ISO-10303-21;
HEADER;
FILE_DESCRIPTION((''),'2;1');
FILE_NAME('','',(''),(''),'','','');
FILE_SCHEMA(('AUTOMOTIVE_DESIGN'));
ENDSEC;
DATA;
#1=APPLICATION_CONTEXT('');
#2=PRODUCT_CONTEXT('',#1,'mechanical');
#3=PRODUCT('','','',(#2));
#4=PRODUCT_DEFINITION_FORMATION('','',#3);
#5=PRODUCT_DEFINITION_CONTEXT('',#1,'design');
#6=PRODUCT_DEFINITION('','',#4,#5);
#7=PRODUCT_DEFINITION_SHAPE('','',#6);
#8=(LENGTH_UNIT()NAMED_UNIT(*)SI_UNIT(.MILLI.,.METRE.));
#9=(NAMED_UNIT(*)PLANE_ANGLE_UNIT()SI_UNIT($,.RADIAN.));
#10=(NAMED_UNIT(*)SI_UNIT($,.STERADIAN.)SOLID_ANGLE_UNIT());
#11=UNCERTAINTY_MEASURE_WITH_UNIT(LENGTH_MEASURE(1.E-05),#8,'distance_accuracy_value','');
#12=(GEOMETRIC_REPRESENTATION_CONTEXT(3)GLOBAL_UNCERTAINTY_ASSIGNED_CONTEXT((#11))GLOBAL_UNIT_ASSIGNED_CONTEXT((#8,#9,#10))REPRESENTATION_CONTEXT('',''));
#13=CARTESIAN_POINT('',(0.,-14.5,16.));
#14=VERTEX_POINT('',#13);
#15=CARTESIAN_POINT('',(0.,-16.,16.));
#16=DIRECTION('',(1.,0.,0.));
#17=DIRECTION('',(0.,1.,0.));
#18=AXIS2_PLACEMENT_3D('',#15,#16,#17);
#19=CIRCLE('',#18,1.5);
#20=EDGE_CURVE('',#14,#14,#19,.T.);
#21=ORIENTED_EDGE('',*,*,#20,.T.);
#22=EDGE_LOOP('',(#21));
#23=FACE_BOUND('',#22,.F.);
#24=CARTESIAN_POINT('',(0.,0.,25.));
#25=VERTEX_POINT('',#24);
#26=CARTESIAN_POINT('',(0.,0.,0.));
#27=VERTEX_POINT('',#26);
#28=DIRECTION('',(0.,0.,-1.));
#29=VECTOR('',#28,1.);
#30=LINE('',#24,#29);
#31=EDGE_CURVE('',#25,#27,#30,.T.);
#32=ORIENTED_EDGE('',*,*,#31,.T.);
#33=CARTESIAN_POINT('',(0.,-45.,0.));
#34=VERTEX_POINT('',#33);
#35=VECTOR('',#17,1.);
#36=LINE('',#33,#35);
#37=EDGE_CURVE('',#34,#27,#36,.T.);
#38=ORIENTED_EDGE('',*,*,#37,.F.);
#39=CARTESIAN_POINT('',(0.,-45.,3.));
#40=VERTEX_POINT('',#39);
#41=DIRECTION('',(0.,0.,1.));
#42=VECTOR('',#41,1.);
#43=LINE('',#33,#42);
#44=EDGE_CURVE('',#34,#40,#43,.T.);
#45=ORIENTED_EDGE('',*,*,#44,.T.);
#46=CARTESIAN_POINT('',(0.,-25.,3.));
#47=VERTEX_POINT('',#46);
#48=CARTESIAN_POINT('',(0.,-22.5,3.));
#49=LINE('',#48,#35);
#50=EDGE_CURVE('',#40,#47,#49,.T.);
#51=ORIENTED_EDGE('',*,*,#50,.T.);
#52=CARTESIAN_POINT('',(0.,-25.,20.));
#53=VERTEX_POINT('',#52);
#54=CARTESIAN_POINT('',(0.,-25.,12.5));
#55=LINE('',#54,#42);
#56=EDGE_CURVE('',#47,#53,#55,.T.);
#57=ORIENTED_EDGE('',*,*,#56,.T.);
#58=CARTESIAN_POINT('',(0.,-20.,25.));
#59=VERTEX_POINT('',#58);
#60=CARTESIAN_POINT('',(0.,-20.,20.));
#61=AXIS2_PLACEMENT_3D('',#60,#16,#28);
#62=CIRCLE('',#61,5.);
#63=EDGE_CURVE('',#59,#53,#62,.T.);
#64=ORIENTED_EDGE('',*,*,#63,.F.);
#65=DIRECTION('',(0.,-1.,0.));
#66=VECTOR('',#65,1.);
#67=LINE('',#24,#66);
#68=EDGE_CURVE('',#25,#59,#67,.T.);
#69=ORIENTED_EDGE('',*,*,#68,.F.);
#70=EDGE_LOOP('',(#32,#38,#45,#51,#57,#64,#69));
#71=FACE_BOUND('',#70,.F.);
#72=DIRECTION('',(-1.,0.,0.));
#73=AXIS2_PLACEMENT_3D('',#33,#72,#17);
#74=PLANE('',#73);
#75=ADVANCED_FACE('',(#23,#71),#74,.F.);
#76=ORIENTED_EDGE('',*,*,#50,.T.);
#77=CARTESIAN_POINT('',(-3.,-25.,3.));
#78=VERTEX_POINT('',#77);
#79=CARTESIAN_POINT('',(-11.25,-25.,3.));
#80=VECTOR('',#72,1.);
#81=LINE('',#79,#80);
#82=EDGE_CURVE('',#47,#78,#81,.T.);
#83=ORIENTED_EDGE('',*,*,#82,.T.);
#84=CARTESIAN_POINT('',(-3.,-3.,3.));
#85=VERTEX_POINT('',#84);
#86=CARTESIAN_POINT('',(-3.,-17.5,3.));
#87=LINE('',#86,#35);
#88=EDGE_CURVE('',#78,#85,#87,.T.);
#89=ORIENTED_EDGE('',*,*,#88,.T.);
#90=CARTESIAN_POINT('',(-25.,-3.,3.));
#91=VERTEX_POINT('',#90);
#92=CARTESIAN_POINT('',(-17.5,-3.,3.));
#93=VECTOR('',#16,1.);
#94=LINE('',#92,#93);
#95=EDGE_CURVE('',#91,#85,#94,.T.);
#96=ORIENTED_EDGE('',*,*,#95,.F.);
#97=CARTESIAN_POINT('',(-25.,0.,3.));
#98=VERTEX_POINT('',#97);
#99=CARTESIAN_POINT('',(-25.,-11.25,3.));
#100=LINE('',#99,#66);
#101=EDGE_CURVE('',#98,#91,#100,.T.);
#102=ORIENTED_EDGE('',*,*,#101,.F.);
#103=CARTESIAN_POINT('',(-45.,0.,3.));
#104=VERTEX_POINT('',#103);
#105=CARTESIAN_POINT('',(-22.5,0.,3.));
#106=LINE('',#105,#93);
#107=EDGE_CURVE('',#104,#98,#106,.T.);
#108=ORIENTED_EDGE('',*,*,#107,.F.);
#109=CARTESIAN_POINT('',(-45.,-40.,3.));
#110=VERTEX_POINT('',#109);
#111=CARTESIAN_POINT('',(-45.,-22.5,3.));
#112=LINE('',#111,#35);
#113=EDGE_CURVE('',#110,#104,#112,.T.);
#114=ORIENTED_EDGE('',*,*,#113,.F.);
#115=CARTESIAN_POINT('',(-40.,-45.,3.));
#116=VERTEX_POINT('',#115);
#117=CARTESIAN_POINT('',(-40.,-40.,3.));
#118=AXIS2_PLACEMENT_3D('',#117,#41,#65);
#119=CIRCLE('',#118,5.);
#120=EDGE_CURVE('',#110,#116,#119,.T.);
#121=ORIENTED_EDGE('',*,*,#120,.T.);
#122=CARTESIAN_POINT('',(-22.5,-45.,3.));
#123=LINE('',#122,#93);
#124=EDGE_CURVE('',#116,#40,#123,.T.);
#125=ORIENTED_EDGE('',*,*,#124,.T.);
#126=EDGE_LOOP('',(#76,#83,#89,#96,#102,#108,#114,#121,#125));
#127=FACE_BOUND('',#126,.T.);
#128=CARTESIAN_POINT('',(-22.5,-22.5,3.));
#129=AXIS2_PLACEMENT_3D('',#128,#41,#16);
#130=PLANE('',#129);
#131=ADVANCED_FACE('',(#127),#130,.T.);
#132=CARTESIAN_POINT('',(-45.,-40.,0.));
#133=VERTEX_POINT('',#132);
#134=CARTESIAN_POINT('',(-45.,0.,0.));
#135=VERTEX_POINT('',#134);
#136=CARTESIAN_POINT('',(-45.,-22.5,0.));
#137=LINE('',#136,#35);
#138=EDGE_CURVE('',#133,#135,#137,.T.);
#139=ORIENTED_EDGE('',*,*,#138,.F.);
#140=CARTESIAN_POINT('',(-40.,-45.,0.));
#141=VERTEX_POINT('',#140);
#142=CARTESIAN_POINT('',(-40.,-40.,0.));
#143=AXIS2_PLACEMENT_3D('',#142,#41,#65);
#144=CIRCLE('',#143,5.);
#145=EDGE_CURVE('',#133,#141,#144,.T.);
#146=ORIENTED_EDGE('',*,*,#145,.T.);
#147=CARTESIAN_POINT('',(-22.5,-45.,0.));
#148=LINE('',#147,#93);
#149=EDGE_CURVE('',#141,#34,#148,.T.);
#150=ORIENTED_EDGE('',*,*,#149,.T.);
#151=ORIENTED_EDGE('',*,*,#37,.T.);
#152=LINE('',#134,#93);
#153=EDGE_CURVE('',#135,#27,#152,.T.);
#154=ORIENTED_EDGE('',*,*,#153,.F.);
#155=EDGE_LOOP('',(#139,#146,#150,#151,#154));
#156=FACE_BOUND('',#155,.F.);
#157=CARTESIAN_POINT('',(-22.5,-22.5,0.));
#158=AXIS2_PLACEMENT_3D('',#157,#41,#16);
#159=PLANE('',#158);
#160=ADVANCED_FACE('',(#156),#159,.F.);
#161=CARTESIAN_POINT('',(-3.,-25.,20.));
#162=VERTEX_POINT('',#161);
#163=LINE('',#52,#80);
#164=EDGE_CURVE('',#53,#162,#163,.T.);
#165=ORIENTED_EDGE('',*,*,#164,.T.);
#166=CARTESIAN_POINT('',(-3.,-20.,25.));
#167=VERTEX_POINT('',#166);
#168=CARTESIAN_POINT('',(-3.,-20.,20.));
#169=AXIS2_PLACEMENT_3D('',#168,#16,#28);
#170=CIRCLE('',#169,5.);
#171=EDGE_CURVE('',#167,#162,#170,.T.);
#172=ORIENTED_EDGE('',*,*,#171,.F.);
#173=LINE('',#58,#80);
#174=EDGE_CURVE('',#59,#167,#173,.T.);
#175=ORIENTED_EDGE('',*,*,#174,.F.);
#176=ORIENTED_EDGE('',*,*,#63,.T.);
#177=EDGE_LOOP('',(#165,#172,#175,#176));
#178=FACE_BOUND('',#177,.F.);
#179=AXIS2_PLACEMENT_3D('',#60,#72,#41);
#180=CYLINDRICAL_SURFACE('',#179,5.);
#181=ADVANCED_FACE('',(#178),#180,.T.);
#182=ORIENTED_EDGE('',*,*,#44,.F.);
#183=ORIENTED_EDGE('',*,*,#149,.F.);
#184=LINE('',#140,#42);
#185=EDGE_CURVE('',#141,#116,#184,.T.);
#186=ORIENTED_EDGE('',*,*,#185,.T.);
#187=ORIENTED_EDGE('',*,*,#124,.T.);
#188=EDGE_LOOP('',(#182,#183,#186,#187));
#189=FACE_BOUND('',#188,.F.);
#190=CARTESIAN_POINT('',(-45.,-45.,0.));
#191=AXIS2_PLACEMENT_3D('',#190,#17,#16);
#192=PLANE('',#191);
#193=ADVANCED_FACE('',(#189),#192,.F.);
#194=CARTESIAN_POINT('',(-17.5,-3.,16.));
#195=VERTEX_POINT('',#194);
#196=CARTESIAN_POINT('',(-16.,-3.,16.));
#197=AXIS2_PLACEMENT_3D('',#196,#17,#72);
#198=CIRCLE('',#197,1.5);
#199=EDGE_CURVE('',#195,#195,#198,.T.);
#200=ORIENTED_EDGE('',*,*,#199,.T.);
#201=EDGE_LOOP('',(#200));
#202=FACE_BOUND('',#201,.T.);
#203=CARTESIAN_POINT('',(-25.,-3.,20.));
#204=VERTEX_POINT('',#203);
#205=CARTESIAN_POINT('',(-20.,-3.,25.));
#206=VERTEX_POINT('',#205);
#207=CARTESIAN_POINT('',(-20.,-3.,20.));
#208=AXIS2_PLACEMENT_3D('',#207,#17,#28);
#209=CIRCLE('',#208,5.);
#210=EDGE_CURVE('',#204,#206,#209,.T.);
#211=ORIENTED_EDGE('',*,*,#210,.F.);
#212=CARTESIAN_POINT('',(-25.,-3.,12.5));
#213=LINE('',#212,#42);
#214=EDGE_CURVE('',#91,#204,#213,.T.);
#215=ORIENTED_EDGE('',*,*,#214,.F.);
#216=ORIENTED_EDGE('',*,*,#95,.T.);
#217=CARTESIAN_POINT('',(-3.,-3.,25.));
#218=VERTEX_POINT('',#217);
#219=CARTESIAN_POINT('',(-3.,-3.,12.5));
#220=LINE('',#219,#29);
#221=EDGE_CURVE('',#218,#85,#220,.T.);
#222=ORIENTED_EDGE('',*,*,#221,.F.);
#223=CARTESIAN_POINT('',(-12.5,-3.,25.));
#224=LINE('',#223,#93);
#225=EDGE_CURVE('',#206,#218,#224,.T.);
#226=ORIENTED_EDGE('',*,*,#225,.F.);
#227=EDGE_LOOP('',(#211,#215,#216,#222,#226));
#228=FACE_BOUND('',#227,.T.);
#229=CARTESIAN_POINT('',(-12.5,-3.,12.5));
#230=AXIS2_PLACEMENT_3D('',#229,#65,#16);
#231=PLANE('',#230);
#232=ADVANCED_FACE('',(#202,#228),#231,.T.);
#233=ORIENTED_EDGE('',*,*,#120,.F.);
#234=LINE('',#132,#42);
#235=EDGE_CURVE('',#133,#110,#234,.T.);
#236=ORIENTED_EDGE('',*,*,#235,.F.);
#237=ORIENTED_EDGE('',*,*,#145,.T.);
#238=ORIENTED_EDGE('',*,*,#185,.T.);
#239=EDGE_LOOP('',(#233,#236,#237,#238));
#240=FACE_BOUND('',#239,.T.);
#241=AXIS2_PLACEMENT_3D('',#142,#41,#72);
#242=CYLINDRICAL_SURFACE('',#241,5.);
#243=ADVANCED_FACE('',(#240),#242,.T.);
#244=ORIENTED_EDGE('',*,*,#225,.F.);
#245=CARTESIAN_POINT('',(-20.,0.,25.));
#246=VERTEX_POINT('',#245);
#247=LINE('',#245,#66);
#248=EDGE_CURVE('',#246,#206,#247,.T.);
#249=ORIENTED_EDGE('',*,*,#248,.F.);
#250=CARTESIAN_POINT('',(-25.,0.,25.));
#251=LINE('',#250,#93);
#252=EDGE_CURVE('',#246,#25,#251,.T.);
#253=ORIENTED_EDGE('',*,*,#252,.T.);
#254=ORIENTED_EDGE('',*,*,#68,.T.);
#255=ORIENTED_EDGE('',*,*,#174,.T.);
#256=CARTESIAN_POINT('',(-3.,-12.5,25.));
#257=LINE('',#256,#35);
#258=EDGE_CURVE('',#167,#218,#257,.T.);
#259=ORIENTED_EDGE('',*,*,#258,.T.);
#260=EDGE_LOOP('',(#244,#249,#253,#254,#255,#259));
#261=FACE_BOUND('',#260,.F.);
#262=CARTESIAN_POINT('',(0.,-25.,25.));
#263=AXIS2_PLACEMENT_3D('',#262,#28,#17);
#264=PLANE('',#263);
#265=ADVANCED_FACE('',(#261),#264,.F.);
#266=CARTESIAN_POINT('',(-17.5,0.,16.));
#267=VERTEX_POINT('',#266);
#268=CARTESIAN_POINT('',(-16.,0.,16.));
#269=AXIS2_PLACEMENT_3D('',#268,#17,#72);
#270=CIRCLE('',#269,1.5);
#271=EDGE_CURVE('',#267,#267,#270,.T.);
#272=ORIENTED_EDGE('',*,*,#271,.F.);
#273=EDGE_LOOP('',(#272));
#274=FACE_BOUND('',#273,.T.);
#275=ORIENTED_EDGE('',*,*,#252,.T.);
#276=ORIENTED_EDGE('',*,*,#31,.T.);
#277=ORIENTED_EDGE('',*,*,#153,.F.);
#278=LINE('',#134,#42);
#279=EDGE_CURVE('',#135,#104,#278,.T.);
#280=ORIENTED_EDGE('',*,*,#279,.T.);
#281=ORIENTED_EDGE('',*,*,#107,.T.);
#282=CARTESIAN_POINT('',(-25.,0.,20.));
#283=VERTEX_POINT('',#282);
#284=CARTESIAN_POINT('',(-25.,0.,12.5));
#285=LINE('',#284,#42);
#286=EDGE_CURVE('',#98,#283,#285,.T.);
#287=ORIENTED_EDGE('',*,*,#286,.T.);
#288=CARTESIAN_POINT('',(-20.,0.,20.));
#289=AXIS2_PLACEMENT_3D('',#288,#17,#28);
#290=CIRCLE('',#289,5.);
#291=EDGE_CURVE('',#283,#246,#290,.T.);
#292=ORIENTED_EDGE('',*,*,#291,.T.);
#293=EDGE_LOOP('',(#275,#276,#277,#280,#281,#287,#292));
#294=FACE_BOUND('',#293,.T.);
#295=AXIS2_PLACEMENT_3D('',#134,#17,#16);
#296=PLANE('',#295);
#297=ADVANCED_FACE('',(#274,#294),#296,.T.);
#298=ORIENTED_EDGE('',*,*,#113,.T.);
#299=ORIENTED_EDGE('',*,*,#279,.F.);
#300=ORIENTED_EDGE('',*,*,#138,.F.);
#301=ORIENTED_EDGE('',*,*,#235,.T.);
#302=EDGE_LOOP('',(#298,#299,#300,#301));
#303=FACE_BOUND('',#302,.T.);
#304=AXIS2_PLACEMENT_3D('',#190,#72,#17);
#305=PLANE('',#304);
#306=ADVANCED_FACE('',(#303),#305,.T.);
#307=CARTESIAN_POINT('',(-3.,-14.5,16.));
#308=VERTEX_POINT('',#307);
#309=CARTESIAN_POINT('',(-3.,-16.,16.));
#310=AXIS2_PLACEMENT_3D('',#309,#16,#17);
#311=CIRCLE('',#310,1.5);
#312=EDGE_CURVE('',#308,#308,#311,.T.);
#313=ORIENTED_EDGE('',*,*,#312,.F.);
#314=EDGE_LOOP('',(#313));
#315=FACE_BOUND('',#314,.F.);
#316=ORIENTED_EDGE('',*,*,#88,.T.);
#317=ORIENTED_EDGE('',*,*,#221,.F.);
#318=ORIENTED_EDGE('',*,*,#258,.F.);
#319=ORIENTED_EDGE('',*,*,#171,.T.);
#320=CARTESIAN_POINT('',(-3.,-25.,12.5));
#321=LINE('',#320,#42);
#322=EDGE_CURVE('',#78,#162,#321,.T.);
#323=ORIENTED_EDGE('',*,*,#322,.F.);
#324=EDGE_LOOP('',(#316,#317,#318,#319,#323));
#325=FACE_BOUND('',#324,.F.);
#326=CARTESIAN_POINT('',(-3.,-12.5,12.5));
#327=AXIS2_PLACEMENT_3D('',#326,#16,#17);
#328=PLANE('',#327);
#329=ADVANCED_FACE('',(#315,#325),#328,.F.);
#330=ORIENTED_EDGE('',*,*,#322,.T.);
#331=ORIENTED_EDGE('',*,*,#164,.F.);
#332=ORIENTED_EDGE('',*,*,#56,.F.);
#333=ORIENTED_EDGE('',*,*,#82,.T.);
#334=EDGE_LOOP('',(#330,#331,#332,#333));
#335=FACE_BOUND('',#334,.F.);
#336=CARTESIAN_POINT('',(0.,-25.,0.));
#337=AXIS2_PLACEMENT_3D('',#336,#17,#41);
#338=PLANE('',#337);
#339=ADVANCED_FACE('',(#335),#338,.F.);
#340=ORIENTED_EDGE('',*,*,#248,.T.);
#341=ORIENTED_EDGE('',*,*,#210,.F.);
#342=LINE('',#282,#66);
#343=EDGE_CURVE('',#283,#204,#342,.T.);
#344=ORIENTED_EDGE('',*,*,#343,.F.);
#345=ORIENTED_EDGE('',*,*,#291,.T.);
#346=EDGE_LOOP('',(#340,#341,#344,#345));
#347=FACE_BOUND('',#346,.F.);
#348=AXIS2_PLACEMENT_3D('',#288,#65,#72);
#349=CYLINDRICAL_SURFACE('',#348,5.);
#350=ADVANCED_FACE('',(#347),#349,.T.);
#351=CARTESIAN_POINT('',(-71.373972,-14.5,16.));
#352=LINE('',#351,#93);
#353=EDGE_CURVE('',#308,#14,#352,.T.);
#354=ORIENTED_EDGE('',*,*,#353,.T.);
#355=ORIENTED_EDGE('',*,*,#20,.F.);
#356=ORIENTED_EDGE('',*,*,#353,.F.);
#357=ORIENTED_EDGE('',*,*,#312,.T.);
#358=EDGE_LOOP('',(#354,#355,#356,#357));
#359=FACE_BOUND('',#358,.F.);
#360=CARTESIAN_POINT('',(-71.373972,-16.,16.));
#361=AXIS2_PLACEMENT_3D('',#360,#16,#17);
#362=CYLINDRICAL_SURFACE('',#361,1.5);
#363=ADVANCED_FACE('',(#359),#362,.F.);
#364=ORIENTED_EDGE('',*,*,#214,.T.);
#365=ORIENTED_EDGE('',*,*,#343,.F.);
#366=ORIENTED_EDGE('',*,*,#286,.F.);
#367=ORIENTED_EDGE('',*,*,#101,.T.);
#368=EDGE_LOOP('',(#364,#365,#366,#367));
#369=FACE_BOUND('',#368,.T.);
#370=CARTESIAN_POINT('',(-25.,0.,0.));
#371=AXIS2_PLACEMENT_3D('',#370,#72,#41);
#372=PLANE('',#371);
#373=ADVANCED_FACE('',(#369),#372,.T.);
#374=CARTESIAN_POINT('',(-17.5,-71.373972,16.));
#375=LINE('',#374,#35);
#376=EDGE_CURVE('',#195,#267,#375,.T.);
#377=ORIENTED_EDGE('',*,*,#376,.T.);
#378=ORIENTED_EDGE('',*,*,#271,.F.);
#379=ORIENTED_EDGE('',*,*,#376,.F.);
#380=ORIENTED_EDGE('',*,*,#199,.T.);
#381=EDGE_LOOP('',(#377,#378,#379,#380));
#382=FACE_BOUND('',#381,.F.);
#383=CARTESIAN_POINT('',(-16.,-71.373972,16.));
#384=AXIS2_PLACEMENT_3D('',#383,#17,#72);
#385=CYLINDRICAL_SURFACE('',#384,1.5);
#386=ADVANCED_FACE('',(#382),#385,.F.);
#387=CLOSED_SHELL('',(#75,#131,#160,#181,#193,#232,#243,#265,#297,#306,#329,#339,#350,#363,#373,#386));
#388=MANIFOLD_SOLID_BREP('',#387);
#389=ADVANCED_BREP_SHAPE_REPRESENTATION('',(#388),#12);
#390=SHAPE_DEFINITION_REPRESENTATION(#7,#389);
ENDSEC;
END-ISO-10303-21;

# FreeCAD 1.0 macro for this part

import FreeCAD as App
import Part
import Sketcher

V = App.Vector


def edges_at(feature, points):
    """Names of the edges that pass closest to the given points."""
    edges = feature.Shape.Edges
    near = lambda p: min(range(len(edges)), key=lambda i: edges[i].distToShape(Part.Vertex(*p))[0])
    return sorted({f"Edge{near(p) + 1}" for p in points})

doc = App.newDocument("Part")
params = doc.addObject("Spreadsheet::Sheet", "Params")
for row, (alias, value) in enumerate([
    ("sketch1_width", "45 mm"),
    ("pad1_length", "3 mm"),
    ("fillet_radius", "5 mm"),
    ("sketch2_width", "25 mm"),
    ("pad2_length", "3 mm"),
    ("fillet2_radius", "5 mm"),
    ("sketch3_width", "25 mm"),
    ("pad3_length", "3 mm"),
    ("fillet3_radius", "5 mm"),
    ("sketch4_diameter", "3 mm"),
    ("hole_diameter", "3 mm"),
    ("sketch5_diameter", "3 mm"),
    ("hole2_diameter", "3 mm"),
], start=1):
    params.set(f"A{row}", alias)
    params.set(f"B{row}", "=" + value)
    params.setAlias(f"B{row}", alias)

body = doc.addObject("PartDesign::Body", "Body")

# Sketch on XY plane
sketch1 = body.newObject("Sketcher::SketchObject", "Sketch")
sketch1.AttachmentSupport = (doc.getObject("XY_Plane"), [""])
sketch1.MapMode = "FlatFace"
sketch1.addGeometry(Part.LineSegment(V(-45, 0, 0), V(-45, -45, 0)), False)
sketch1.addGeometry(Part.LineSegment(V(-45, -45, 0), V(0, -45, 0)), False)
sketch1.addGeometry(Part.LineSegment(V(0, -45, 0), V(0, 0, 0)), False)
sketch1.addGeometry(Part.LineSegment(V(0, 0, 0), V(-45, 0, 0)), False)
sketch1.addConstraint(Sketcher.Constraint("Coincident", 0, 2, 1, 1))
sketch1.addConstraint(Sketcher.Constraint("Coincident", 1, 2, 2, 1))
sketch1.addConstraint(Sketcher.Constraint("Coincident", 2, 2, 3, 1))
sketch1.addConstraint(Sketcher.Constraint("Coincident", 3, 2, 0, 1))
sketch1.addConstraint(Sketcher.Constraint("Vertical", 0))
sketch1.addConstraint(Sketcher.Constraint("Horizontal", 1))
sketch1.addConstraint(Sketcher.Constraint("Vertical", 2))
sketch1.addConstraint(Sketcher.Constraint("Horizontal", 3))
sketch1.addConstraint(Sketcher.Constraint("Coincident", 2, 2, -1, 1))
sketch1.addConstraint(Sketcher.Constraint("Equal", 3, 0))
sketch1.addConstraint(Sketcher.Constraint("DistanceX", 1, 1, 1, 2, 45.0))
sketch1.setExpression("Constraints[10]", "Params.sketch1_width")
pad1 = body.newObject("PartDesign::Pad", "Pad")
pad1.Profile = sketch1
pad1.setExpression("Length", "Params.pad1_length")
doc.recompute()

fillet = body.newObject("PartDesign::Fillet", "Fillet")
fillet.Base = (pad1, edges_at(pad1, [(-45, -45, 1.5)]))
fillet.setExpression("Radius", "Params.fillet_radius")

# Sketch on YZ plane
sketch2 = body.newObject("Sketcher::SketchObject", "Sketch001")
sketch2.AttachmentSupport = (doc.getObject("YZ_Plane"), [""])
sketch2.MapMode = "FlatFace"
sketch2.addGeometry(Part.LineSegment(V(-25, 25, 0), V(-25, 0, 0)), False)
sketch2.addGeometry(Part.LineSegment(V(-25, 0, 0), V(0, 0, 0)), False)
sketch2.addGeometry(Part.LineSegment(V(0, 0, 0), V(0, 25, 0)), False)
sketch2.addGeometry(Part.LineSegment(V(0, 25, 0), V(-25, 25, 0)), False)
sketch2.addConstraint(Sketcher.Constraint("Coincident", 0, 2, 1, 1))
sketch2.addConstraint(Sketcher.Constraint("Coincident", 1, 2, 2, 1))
sketch2.addConstraint(Sketcher.Constraint("Coincident", 2, 2, 3, 1))
sketch2.addConstraint(Sketcher.Constraint("Coincident", 3, 2, 0, 1))
sketch2.addConstraint(Sketcher.Constraint("Vertical", 0))
sketch2.addConstraint(Sketcher.Constraint("Horizontal", 1))
sketch2.addConstraint(Sketcher.Constraint("Vertical", 2))
sketch2.addConstraint(Sketcher.Constraint("Horizontal", 3))
sketch2.addConstraint(Sketcher.Constraint("Coincident", 1, 2, -1, 1))
sketch2.addConstraint(Sketcher.Constraint("Equal", 3, 0))
sketch2.addConstraint(Sketcher.Constraint("DistanceX", 1, 1, 1, 2, 25.0))
sketch2.setExpression("Constraints[10]", "Params.sketch2_width")
pad2 = body.newObject("PartDesign::Pad", "Pad001")
pad2.Profile = sketch2
pad2.setExpression("Length", "Params.pad2_length")
pad2.Reversed = True
doc.recompute()

fillet2 = body.newObject("PartDesign::Fillet", "Fillet001")
fillet2.Base = (pad2, edges_at(pad2, [(-1.5, -25, 25)]))
fillet2.setExpression("Radius", "Params.fillet2_radius")

# Sketch on XZ plane
sketch3 = body.newObject("Sketcher::SketchObject", "Sketch002")
sketch3.AttachmentSupport = (doc.getObject("XZ_Plane"), [""])
sketch3.MapMode = "FlatFace"
sketch3.addGeometry(Part.LineSegment(V(-25, 25, 0), V(-25, 0, 0)), False)
sketch3.addGeometry(Part.LineSegment(V(-25, 0, 0), V(0, 0, 0)), False)
sketch3.addGeometry(Part.LineSegment(V(0, 0, 0), V(0, 25, 0)), False)
sketch3.addGeometry(Part.LineSegment(V(0, 25, 0), V(-25, 25, 0)), False)
sketch3.addConstraint(Sketcher.Constraint("Coincident", 0, 2, 1, 1))
sketch3.addConstraint(Sketcher.Constraint("Coincident", 1, 2, 2, 1))
sketch3.addConstraint(Sketcher.Constraint("Coincident", 2, 2, 3, 1))
sketch3.addConstraint(Sketcher.Constraint("Coincident", 3, 2, 0, 1))
sketch3.addConstraint(Sketcher.Constraint("Vertical", 0))
sketch3.addConstraint(Sketcher.Constraint("Horizontal", 1))
sketch3.addConstraint(Sketcher.Constraint("Vertical", 2))
sketch3.addConstraint(Sketcher.Constraint("Horizontal", 3))
sketch3.addConstraint(Sketcher.Constraint("Coincident", 1, 2, -1, 1))
sketch3.addConstraint(Sketcher.Constraint("Equal", 3, 0))
sketch3.addConstraint(Sketcher.Constraint("DistanceX", 1, 1, 1, 2, 25.0))
sketch3.setExpression("Constraints[10]", "Params.sketch3_width")
pad3 = body.newObject("PartDesign::Pad", "Pad002")
pad3.Profile = sketch3
pad3.setExpression("Length", "Params.pad3_length")
doc.recompute()

fillet3 = body.newObject("PartDesign::Fillet", "Fillet002")
fillet3.Base = (pad3, edges_at(pad3, [(-25, -1.5, 25)]))
fillet3.setExpression("Radius", "Params.fillet3_radius")

# Sketch on XZ plane
sketch4 = body.newObject("Sketcher::SketchObject", "Sketch003")
sketch4.AttachmentSupport = (doc.getObject("XZ_Plane"), [""])
sketch4.MapMode = "FlatFace"
sketch4.AttachmentOffset = App.Placement(V(0, 0, 3), App.Rotation())
sketch4.addGeometry(Part.Circle(V(-16, 16, 0), V(0, 0, 1), 1.5), False)
sketch4.addConstraint(Sketcher.Constraint("Diameter", 0, 3.0))
sketch4.addConstraint(Sketcher.Constraint("DistanceX", 0, 3, -1, 1, 16.0))
sketch4.addConstraint(Sketcher.Constraint("DistanceY", -1, 1, 0, 3, 16.0))
sketch4.setExpression("Constraints[0]", "Params.sketch4_diameter")
doc.recompute()
hole = body.newObject("PartDesign::Hole", "Hole")
hole.Profile = sketch4
hole.ThreadType = "None"
hole.setExpression("Diameter", "Params.hole_diameter")
hole.DepthType = "ThroughAll"

# Sketch on YZ plane
sketch5 = body.newObject("Sketcher::SketchObject", "Sketch004")
sketch5.AttachmentSupport = (doc.getObject("YZ_Plane"), [""])
sketch5.MapMode = "FlatFace"
sketch5.AttachmentOffset = App.Placement(V(0, 0, -3), App.Rotation())
sketch5.addGeometry(Part.Circle(V(-16, 16, 0), V(0, 0, 1), 1.5), False)
sketch5.addConstraint(Sketcher.Constraint("Diameter", 0, 3.0))
sketch5.addConstraint(Sketcher.Constraint("DistanceX", 0, 3, -1, 1, 16.0))
sketch5.addConstraint(Sketcher.Constraint("DistanceY", -1, 1, 0, 3, 16.0))
sketch5.setExpression("Constraints[0]", "Params.sketch5_diameter")
doc.recompute()
hole2 = body.newObject("PartDesign::Hole", "Hole001")
hole2.Profile = sketch5
hole2.ThreadType = "None"
hole2.setExpression("Diameter", "Params.hole2_diameter")
hole2.DepthType = "ThroughAll"
hole2.Reversed = True

doc.recompute()
